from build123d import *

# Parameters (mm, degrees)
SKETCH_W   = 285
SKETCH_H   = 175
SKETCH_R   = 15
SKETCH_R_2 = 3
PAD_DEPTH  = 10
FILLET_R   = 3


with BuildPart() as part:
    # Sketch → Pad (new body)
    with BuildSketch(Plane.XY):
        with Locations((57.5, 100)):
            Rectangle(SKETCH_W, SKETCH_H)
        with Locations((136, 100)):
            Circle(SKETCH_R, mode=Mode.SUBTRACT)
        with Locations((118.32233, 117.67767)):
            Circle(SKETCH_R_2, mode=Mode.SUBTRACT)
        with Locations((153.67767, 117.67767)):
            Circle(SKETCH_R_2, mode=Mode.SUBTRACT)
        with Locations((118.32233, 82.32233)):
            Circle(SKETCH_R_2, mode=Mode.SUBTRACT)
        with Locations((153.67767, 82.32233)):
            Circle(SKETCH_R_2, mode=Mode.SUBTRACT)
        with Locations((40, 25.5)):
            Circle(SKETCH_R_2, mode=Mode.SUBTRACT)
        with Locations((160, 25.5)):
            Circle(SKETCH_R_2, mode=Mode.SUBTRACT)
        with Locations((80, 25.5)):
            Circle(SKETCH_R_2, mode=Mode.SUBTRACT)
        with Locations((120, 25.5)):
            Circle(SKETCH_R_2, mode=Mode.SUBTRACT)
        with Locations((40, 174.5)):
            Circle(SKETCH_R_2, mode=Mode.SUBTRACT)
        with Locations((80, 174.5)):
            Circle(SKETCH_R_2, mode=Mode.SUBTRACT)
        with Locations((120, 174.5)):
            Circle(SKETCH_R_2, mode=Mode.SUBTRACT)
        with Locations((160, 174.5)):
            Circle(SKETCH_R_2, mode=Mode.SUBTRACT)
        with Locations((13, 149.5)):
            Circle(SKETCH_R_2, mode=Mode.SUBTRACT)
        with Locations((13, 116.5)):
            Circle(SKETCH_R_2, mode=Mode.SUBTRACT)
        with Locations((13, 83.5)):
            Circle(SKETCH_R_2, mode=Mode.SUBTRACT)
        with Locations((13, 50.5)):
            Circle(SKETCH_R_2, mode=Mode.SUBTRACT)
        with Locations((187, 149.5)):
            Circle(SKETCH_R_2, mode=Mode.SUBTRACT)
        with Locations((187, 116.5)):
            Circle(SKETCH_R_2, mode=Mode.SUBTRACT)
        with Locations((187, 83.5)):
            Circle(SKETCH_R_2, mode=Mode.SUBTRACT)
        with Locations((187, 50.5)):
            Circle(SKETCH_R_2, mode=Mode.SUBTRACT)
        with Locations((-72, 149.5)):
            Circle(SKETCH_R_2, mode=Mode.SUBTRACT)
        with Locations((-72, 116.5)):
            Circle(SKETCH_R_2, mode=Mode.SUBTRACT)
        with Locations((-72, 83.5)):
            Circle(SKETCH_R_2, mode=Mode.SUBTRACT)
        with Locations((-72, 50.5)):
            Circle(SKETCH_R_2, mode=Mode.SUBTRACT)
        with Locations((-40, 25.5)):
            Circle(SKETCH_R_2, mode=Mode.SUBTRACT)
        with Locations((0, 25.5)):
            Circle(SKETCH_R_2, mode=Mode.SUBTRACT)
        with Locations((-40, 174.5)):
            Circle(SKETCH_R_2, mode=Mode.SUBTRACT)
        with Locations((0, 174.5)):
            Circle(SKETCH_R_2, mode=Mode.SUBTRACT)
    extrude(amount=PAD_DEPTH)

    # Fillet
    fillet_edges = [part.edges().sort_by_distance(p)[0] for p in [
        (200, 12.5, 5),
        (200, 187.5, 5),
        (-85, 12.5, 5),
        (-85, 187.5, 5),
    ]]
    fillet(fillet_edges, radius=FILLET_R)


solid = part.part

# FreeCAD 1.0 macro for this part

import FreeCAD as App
import Part
import Sketcher

V = App.Vector


def edges_at(feature, points):
    """Names of the edges that pass closest to the given points."""
    edges = feature.Shape.Edges
    near = lambda p: min(range(len(edges)), key=lambda i: edges[i].distToShape(Part.Vertex(*p))[0])
    return sorted({f"Edge{near(p) + 1}" for p in points})


def add_polygon(sketch, points):
    """Adds a closed chain of lines whose ends are joined by coincident constraints."""
    first, n = sketch.GeometryCount, len(points)
    for a, b in zip(points, points[1:] + points[:1]):
        sketch.addGeometry(Part.LineSegment(App.Vector(*a, 0), App.Vector(*b, 0)), False)
    for i in range(n):
        sketch.addConstraint(Sketcher.Constraint("Coincident", first + i, 2, first + (i + 1) % n, 1))

doc = App.newDocument("Part")
body = doc.addObject("PartDesign::Body", "Body")

# Sketch on XY plane
sketch1 = body.newObject("Sketcher::SketchObject", "Sketch")
sketch1.AttachmentSupport = (doc.getObject("XY_Plane"), [""])
sketch1.MapMode = "FlatFace"
add_polygon(sketch1, [(-85, 187.5), (-85, 12.5), (200, 12.5), (200, 187.5)])  # lines 0-3
sketch1.addGeometry(Part.Circle(V(-40, 25.5, 0), V(0, 0, 1), 3), False)  # 4
sketch1.addGeometry(Part.Circle(V(-72, 50.5, 0), V(0, 0, 1), 3), False)  # 5
sketch1.addGeometry(Part.Circle(V(0, 25.5, 0), V(0, 0, 1), 3), False)  # 6
sketch1.addGeometry(Part.Circle(V(40, 25.5, 0), V(0, 0, 1), 3), False)  # 7
sketch1.addGeometry(Part.Circle(V(13, 50.5, 0), V(0, 0, 1), 3), False)  # 8
sketch1.addGeometry(Part.Circle(V(-72, 83.5, 0), V(0, 0, 1), 3), False)  # 9
sketch1.addGeometry(Part.Circle(V(13, 83.5, 0), V(0, 0, 1), 3), False)  # 10
sketch1.addGeometry(Part.Circle(V(80, 25.5, 0), V(0, 0, 1), 3), False)  # 11
sketch1.addGeometry(Part.Circle(V(120, 25.5, 0), V(0, 0, 1), 3), False)  # 12
sketch1.addGeometry(Part.Circle(V(160, 25.5, 0), V(0, 0, 1), 3), False)  # 13
sketch1.addGeometry(Part.Circle(V(187, 50.5, 0), V(0, 0, 1), 3), False)  # 14
sketch1.addGeometry(Part.Circle(V(118.3, 82.3, 0), V(0, 0, 1), 3), False)  # 15
sketch1.addGeometry(Part.Circle(V(153.7, 82.3, 0), V(0, 0, 1), 3), False)  # 16
sketch1.addGeometry(Part.Circle(V(187, 83.5, 0), V(0, 0, 1), 3), False)  # 17
sketch1.addGeometry(Part.Circle(V(-72, 116.5, 0), V(0, 0, 1), 3), False)  # 18
sketch1.addGeometry(Part.Circle(V(13, 116.5, 0), V(0, 0, 1), 3), False)  # 19
sketch1.addGeometry(Part.Circle(V(-72, 149.5, 0), V(0, 0, 1), 3), False)  # 20
sketch1.addGeometry(Part.Circle(V(-40, 174.5, 0), V(0, 0, 1), 3), False)  # 21
sketch1.addGeometry(Part.Circle(V(13, 149.5, 0), V(0, 0, 1), 3), False)  # 22
sketch1.addGeometry(Part.Circle(V(0, 174.5, 0), V(0, 0, 1), 3), False)  # 23
sketch1.addGeometry(Part.Circle(V(40, 174.5, 0), V(0, 0, 1), 3), False)  # 24
sketch1.addGeometry(Part.Circle(V(118.3, 117.7, 0), V(0, 0, 1), 3), False)  # 25
sketch1.addGeometry(Part.Circle(V(136, 100, 0), V(0, 0, 1), 15), False)  # 26
sketch1.addGeometry(Part.Circle(V(153.7, 117.7, 0), V(0, 0, 1), 3), False)  # 27
sketch1.addGeometry(Part.Circle(V(187, 116.5, 0), V(0, 0, 1), 3), False)  # 28
sketch1.addGeometry(Part.Circle(V(80, 174.5, 0), V(0, 0, 1), 3), False)  # 29
sketch1.addGeometry(Part.Circle(V(120, 174.5, 0), V(0, 0, 1), 3), False)  # 30
sketch1.addGeometry(Part.Circle(V(187, 149.5, 0), V(0, 0, 1), 3), False)  # 31
sketch1.addGeometry(Part.Circle(V(160, 174.5, 0), V(0, 0, 1), 3), False)  # 32
sketch1.addConstraint(Sketcher.Constraint("Vertical", 0))
sketch1.addConstraint(Sketcher.Constraint("Horizontal", 1))
sketch1.addConstraint(Sketcher.Constraint("Vertical", 2))
sketch1.addConstraint(Sketcher.Constraint("Horizontal", 3))
sketch1.addConstraint(Sketcher.Constraint("Equal", 4, 5))
sketch1.addConstraint(Sketcher.Constraint("Equal", 5, 6))
sketch1.addConstraint(Sketcher.Constraint("Equal", 6, 7))
sketch1.addConstraint(Sketcher.Constraint("Equal", 7, 8))
sketch1.addConstraint(Sketcher.Constraint("Equal", 8, 9))
sketch1.addConstraint(Sketcher.Constraint("Equal", 9, 10))
sketch1.addConstraint(Sketcher.Constraint("Equal", 10, 11))
sketch1.addConstraint(Sketcher.Constraint("Equal", 11, 12))
sketch1.addConstraint(Sketcher.Constraint("Equal", 12, 13))
sketch1.addConstraint(Sketcher.Constraint("Equal", 13, 14))
sketch1.addConstraint(Sketcher.Constraint("Equal", 14, 15))
sketch1.addConstraint(Sketcher.Constraint("Equal", 15, 16))
sketch1.addConstraint(Sketcher.Constraint("Equal", 16, 17))
sketch1.addConstraint(Sketcher.Constraint("Equal", 17, 18))
sketch1.addConstraint(Sketcher.Constraint("Equal", 18, 19))
sketch1.addConstraint(Sketcher.Constraint("Equal", 19, 20))
sketch1.addConstraint(Sketcher.Constraint("Equal", 20, 21))
sketch1.addConstraint(Sketcher.Constraint("Equal", 21, 22))
sketch1.addConstraint(Sketcher.Constraint("Equal", 22, 23))
sketch1.addConstraint(Sketcher.Constraint("Equal", 23, 24))
sketch1.addConstraint(Sketcher.Constraint("Equal", 24, 25))
sketch1.addConstraint(Sketcher.Constraint("Equal", 25, 27))
sketch1.addConstraint(Sketcher.Constraint("Equal", 27, 28))
sketch1.addConstraint(Sketcher.Constraint("Equal", 28, 29))
sketch1.addConstraint(Sketcher.Constraint("Equal", 29, 30))
sketch1.addConstraint(Sketcher.Constraint("Equal", 30, 31))
sketch1.addConstraint(Sketcher.Constraint("Equal", 31, 32))
sketch1.addConstraint(Sketcher.Constraint("Symmetric", 4, 3, 7, 3, -2))
sketch1.addConstraint(Sketcher.Constraint("Symmetric", 21, 3, 24, 3, -2))
sketch1.addConstraint(Sketcher.Constraint("PointOnObject", 6, 3, -2))
sketch1.addConstraint(Sketcher.Constraint("PointOnObject", 23, 3, -2))
sketch1.addConstraint(Sketcher.Constraint("Horizontal", 4, 3, 6, 3))
sketch1.addConstraint(Sketcher.Constraint("Horizontal", 5, 3, 8, 3))
sketch1.addConstraint(Sketcher.Constraint("Horizontal", 9, 3, 10, 3))
sketch1.addConstraint(Sketcher.Constraint("Horizontal", 7, 3, 11, 3))
sketch1.addConstraint(Sketcher.Constraint("Horizontal", 11, 3, 12, 3))
sketch1.addConstraint(Sketcher.Constraint("Horizontal", 12, 3, 13, 3))
sketch1.addConstraint(Sketcher.Constraint("Horizontal", 8, 3, 14, 3))
sketch1.addConstraint(Sketcher.Constraint("Horizontal", 15, 3, 16, 3))
sketch1.addConstraint(Sketcher.Constraint("Horizontal", 10, 3, 17, 3))
sketch1.addConstraint(Sketcher.Constraint("Horizontal", 18, 3, 19, 3))
sketch1.addConstraint(Sketcher.Constraint("Horizontal", 20, 3, 22, 3))
sketch1.addConstraint(Sketcher.Constraint("Horizontal", 21, 3, 23, 3))
sketch1.addConstraint(Sketcher.Constraint("Horizontal", 25, 3, 27, 3))
sketch1.addConstraint(Sketcher.Constraint("Horizontal", 19, 3, 28, 3))
sketch1.addConstraint(Sketcher.Constraint("Horizontal", 24, 3, 29, 3))
sketch1.addConstraint(Sketcher.Constraint("Horizontal", 29, 3, 30, 3))
sketch1.addConstraint(Sketcher.Constraint("Horizontal", 22, 3, 31, 3))
sketch1.addConstraint(Sketcher.Constraint("Horizontal", 30, 3, 32, 3))
sketch1.addConstraint(Sketcher.Constraint("Vertical", 5, 3, 9, 3))
sketch1.addConstraint(Sketcher.Constraint("Vertical", 8, 3, 10, 3))
sketch1.addConstraint(Sketcher.Constraint("Vertical", 14, 3, 17, 3))
sketch1.addConstraint(Sketcher.Constraint("Vertical", 9, 3, 18, 3))
sketch1.addConstraint(Sketcher.Constraint("Vertical", 10, 3, 19, 3))
sketch1.addConstraint(Sketcher.Constraint("Vertical", 18, 3, 20, 3))
sketch1.addConstraint(Sketcher.Constraint("Vertical", 4, 3, 21, 3))
sketch1.addConstraint(Sketcher.Constraint("Vertical", 19, 3, 22, 3))
sketch1.addConstraint(Sketcher.Constraint("Vertical", 15, 3, 25, 3))
sketch1.addConstraint(Sketcher.Constraint("Vertical", 16, 3, 27, 3))
sketch1.addConstraint(Sketcher.Constraint("Vertical", 17, 3, 28, 3))
sketch1.addConstraint(Sketcher.Constraint("Vertical", 11, 3, 29, 3))
sketch1.addConstraint(Sketcher.Constraint("Vertical", 12, 3, 30, 3))
sketch1.addConstraint(Sketcher.Constraint("Vertical", 28, 3, 31, 3))
sketch1.addConstraint(Sketcher.Constraint("Vertical", 13, 3, 32, 3))
sketch1.addConstraint(Sketcher.Constraint("Diameter", 4, 6.0))
sketch1.addConstraint(Sketcher.Constraint("Diameter", 26, 30.0))
sketch1.addConstraint(Sketcher.Constraint("DistanceX", 1, 1, 1, 2, 285.0))
sketch1.addConstraint(Sketcher.Constraint("DistanceY", 0, 2, 0, 1, 175.0))
sketch1.addConstraint(Sketcher.Constraint("DistanceX", 4, 3, -1, 1, 40.0))
sketch1.addConstraint(Sketcher.Constraint("DistanceX", 5, 3, -1, 1, 72.0))
sketch1.addConstraint(Sketcher.Constraint("DistanceX", -1, 1, 8, 3, 13.0))
sketch1.addConstraint(Sketcher.Constraint("DistanceX", -1, 1, 11, 3, 80.0))
sketch1.addConstraint(Sketcher.Constraint("DistanceX", -1, 1, 12, 3, 120.0))
sketch1.addConstraint(Sketcher.Constraint("DistanceX", -1, 1, 13, 3, 160.0))
sketch1.addConstraint(Sketcher.Constraint("DistanceX", -1, 1, 14, 3, 187.0))
sketch1.addConstraint(Sketcher.Constraint("DistanceX", -1, 1, 26, 3, 136.0))
sketch1.addConstraint(Sketcher.Constraint("DistanceY", -1, 1, 26, 3, 100.0))
sketch1.addConstraint(Sketcher.Constraint("DistanceX", 0, 2, -1, 1, 85.0))
sketch1.addConstraint(Sketcher.Constraint("DistanceY", 4, 3, 5, 3, 25.0))
sketch1.addConstraint(Sketcher.Constraint("DistanceY", 5, 3, 9, 3, 33.0))
sketch1.addConstraint(Sketcher.Constraint("DistanceY", 9, 3, 18, 3, 33.0))
sketch1.addConstraint(Sketcher.Constraint("DistanceY", 18, 3, 20, 3, 33.0))
sketch1.addConstraint(Sketcher.Constraint("DistanceY", 20, 3, 21, 3, 25.0))
sketch1.addConstraint(Sketcher.Constraint("DistanceY", 0, 2, 5, 3, 38.0))
sketch1.addConstraint(Sketcher.Constraint("DistanceY", -1, 1, 4, 3, 25.5))
sketch1.addConstraint(Sketcher.Constraint("DistanceX", -1, 1, 15, 3, 118.32233))
sketch1.addConstraint(Sketcher.Constraint("DistanceY", -1, 1, 15, 3, 82.32233))
sketch1.addConstraint(Sketcher.Constraint("DistanceX", -1, 1, 16, 3, 153.67767))
sketch1.addConstraint(Sketcher.Constraint("DistanceY", -1, 1, 25, 3, 117.67767))
pad1 = body.newObject("PartDesign::Pad", "Pad")
pad1.Profile = sketch1
pad1.Length = 10
doc.recompute()

fillet = body.newObject("PartDesign::Fillet", "Fillet")
fillet.Base = (pad1, edges_at(pad1, [
    (200, 12.5, 5),
    (200, 187.5, 5),
    (-85, 12.5, 5),
    (-85, 187.5, 5),
]))
fillet.Radius = 3

doc.recompute()
